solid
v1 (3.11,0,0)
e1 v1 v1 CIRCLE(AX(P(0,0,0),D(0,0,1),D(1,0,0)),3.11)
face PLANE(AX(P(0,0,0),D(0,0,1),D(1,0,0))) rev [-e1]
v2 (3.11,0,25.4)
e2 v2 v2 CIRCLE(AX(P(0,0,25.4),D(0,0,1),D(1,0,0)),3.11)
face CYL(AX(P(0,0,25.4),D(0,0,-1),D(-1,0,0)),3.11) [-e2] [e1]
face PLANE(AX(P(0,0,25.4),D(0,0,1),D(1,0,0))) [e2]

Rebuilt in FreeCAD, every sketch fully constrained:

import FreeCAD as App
import Part
import Sketcher
Q = App.Units.Quantity

doc = App.newDocument("Part")
body = doc.addObject("PartDesign::Body", "Body")

sketch1 = body.newObject("Sketcher::SketchObject", "Sketch")
sketch1.AttachmentSupport = (doc.getObject("XY_Plane"), [""])
sketch1.MapMode = "FlatFace"
sketch1.addGeometry(Part.Circle(App.Vector(0, 0, 0), App.Vector(0, 0, 1), 3.11), False)
sketch1.addConstraint(Sketcher.Constraint("Coincident", 0, 3, -1, 1))
sketch1.addConstraint(Sketcher.Constraint("Diameter", 0, Q("6.22 mm")))
pad1 = body.newObject("PartDesign::Pad", "Pad")
pad1.Profile = sketch1
pad1.Length = Q("1 in")

doc.recompute()
